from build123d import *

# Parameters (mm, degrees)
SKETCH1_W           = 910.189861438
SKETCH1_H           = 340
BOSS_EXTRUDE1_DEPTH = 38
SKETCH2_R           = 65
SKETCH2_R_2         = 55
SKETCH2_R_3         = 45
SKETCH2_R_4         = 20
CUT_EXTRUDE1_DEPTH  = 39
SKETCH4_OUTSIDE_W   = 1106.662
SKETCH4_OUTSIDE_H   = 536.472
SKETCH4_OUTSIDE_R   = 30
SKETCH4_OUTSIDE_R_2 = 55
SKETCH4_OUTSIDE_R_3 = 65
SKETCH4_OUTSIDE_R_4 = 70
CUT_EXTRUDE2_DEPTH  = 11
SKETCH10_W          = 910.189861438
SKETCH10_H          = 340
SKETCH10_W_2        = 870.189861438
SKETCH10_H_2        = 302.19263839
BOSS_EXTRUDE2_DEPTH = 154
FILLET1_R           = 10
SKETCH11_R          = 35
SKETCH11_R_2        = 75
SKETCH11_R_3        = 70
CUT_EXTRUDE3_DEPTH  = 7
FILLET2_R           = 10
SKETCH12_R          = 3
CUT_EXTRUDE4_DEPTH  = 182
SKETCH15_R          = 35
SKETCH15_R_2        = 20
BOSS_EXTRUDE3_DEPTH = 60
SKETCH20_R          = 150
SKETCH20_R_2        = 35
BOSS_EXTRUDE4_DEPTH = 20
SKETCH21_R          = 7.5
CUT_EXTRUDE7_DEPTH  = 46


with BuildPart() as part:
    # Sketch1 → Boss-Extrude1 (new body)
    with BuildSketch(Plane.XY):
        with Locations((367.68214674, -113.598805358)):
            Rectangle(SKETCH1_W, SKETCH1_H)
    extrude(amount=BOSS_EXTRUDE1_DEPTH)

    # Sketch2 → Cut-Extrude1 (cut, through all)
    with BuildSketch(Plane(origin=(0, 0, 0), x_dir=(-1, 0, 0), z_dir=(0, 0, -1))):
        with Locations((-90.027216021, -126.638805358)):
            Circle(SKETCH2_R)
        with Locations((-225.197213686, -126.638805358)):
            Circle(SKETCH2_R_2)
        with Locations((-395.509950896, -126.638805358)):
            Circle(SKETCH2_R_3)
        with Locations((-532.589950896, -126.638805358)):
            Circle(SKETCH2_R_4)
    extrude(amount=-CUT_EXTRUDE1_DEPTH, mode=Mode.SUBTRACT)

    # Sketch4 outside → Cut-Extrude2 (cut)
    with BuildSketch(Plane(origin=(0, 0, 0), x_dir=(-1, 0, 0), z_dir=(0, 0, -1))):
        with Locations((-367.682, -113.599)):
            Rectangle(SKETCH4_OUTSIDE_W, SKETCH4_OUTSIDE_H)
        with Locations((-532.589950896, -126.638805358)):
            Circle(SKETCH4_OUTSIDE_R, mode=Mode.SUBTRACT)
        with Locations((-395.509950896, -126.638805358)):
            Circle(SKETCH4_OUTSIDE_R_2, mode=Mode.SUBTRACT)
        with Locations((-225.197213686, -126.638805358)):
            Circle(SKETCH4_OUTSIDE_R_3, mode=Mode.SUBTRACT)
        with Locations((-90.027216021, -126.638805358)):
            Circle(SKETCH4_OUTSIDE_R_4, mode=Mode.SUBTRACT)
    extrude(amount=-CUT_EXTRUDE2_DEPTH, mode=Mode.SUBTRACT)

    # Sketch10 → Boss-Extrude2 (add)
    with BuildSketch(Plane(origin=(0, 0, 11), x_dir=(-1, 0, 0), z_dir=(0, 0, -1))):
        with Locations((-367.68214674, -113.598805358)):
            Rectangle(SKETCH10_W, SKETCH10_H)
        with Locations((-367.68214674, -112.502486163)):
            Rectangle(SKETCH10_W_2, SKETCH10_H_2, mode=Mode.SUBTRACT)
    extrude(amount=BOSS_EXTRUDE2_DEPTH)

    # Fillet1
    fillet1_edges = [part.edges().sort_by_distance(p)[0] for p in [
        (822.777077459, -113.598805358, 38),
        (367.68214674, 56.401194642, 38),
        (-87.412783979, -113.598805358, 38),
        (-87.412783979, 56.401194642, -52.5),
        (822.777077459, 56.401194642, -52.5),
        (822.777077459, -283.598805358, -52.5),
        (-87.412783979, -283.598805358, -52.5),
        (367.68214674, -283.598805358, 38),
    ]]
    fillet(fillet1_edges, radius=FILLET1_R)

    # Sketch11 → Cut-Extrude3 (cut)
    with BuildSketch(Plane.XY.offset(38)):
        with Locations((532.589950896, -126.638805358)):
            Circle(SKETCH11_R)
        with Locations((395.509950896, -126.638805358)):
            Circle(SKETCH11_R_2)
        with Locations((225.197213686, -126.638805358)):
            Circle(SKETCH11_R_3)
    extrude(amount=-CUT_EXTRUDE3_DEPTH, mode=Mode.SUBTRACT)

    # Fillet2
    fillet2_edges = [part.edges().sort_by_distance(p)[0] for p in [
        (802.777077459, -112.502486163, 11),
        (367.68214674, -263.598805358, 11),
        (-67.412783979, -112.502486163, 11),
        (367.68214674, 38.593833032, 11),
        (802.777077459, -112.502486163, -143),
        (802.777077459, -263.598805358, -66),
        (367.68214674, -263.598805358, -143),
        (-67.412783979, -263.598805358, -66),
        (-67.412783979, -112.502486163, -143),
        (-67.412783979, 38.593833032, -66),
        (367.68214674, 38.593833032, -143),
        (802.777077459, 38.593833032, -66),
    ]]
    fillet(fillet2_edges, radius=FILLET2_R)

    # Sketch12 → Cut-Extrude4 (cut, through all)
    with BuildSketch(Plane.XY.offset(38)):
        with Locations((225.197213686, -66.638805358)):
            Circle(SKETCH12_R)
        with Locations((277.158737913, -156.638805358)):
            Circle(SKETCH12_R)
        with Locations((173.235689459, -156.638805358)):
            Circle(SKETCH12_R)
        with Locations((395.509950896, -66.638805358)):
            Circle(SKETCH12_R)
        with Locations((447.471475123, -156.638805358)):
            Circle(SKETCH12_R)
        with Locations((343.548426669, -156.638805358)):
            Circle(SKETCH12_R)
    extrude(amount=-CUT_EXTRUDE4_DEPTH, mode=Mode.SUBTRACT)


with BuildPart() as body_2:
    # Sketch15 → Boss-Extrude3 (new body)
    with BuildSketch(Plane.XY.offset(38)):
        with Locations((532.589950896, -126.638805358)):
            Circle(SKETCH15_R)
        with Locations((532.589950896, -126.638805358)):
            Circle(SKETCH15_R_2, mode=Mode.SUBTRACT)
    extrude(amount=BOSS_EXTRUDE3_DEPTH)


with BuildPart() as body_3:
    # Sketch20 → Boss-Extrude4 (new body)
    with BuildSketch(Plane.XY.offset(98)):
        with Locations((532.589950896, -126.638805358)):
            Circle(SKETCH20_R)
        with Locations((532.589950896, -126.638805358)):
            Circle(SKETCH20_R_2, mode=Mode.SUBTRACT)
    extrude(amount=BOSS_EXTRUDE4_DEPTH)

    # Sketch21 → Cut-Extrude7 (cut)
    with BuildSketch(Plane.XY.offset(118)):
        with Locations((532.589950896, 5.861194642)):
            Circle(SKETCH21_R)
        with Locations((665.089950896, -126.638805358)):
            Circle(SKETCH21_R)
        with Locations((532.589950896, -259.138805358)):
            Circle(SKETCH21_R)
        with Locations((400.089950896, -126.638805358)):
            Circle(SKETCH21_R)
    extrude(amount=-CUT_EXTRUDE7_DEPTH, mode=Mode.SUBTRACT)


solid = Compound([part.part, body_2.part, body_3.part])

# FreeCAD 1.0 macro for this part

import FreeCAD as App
import Part
import Sketcher

V = App.Vector


def edges_at(feature, points):
    """Names of the edges that pass closest to the given points."""
    edges = feature.Shape.Edges
    near = lambda p: min(range(len(edges)), key=lambda i: edges[i].distToShape(Part.Vertex(*p))[0])
    return sorted({f"Edge{near(p) + 1}" for p in points})


def add_polygon(sketch, points):
    """Adds a closed chain of lines whose ends are joined by coincident constraints."""
    first, n = sketch.GeometryCount, len(points)
    for a, b in zip(points, points[1:] + points[:1]):
        sketch.addGeometry(Part.LineSegment(App.Vector(*a, 0), App.Vector(*b, 0)), False)
    for i in range(n):
        sketch.addConstraint(Sketcher.Constraint("Coincident", first + i, 2, first + (i + 1) % n, 1))

doc = App.newDocument("Part")
body = doc.addObject("PartDesign::Body", "Body")

# Sketch on XY plane
sketch1 = body.newObject("Sketcher::SketchObject", "Sketch")
sketch1.AttachmentSupport = (doc.getObject("XY_Plane"), [""])
sketch1.MapMode = "FlatFace"
add_polygon(sketch1, [(-87, 56), (-87, -284), (823, -284), (823, 56)])  # lines 0-3
sketch1.addConstraint([
    Sketcher.Constraint("Vertical", 0),
    Sketcher.Constraint("Horizontal", 1),
    Sketcher.Constraint("Vertical", 2),
    Sketcher.Constraint("Horizontal", 3),
    Sketcher.Constraint("DistanceY", 0, 2, 0, 1, 340.0),
    Sketcher.Constraint("DistanceX", 1, 1, 1, 2, 910.189861),
    Sketcher.Constraint("DistanceX", 0, 2, -1, 1, 87.412784),
    Sketcher.Constraint("DistanceY", 0, 2, -1, 1, 283.598805),
])
pad1 = body.newObject("PartDesign::Pad", "Pad")
pad1.Profile = sketch1
pad1.Length = 38

# Sketch on XY plane
sketch2 = body.newObject("Sketcher::SketchObject", "Sketch001")
sketch2.AttachmentSupport = (doc.getObject("XY_Plane"), [""])
sketch2.MapMode = "FlatFace"
sketch2.addGeometry([
    Part.Circle(V(90, -127, 0), V(0, 0, 1), 65),
    Part.Circle(V(225, -127, 0), V(0, 0, 1), 55),
    Part.Circle(V(396, -127, 0), V(0, 0, 1), 45),
    Part.Circle(V(533, -127, 0), V(0, 0, 1), 20),
], False)
sketch2.addConstraint([
    Sketcher.Constraint("Horizontal", 0, 3, 1, 3),
    Sketcher.Constraint("Horizontal", 1, 3, 2, 3),
    Sketcher.Constraint("Horizontal", 2, 3, 3, 3),
    Sketcher.Constraint("Diameter", 0, 130.0),
    Sketcher.Constraint("Diameter", 1, 110.0),
    Sketcher.Constraint("Diameter", 2, 90.0),
    Sketcher.Constraint("Diameter", 3, 40.0),
    Sketcher.Constraint("DistanceX", 2, 3, 3, 3, 137.08),
    Sketcher.Constraint("DistanceX", -1, 1, 2, 3, 395.509951),
    Sketcher.Constraint("DistanceX", -1, 1, 0, 3, 90.027216),
    Sketcher.Constraint("DistanceY", 0, 3, -1, 1, 126.638805),
    Sketcher.Constraint("DistanceX", -1, 1, 1, 3, 225.197214),
])
pocket1 = body.newObject("PartDesign::Pocket", "Pocket")
pocket1.Profile = sketch2
pocket1.Type = "ThroughAll"
pocket1.Reversed = True

# Sketch on XY plane
sketch3 = body.newObject("Sketcher::SketchObject", "Sketch002")
sketch3.AttachmentSupport = (doc.getObject("XY_Plane"), [""])
sketch3.MapMode = "FlatFace"
add_polygon(sketch3, [(921, 155), (921, -382), (-186, -382), (-186, 155)])  # lines 0-3
sketch3.addGeometry(Part.Circle(V(533, -127, 0), V(0, 0, 1), 30), False)  # 4
sketch3.addGeometry(Part.Circle(V(396, -127, 0), V(0, 0, 1), 55), False)  # 5
sketch3.addGeometry(Part.Circle(V(225, -127, 0), V(0, 0, 1), 65), False)  # 6
sketch3.addGeometry(Part.Circle(V(90, -127, 0), V(0, 0, 1), 70), False)  # 7
sketch3.addConstraint([
    Sketcher.Constraint("Vertical", 0),
    Sketcher.Constraint("Horizontal", 1),
    Sketcher.Constraint("Vertical", 2),
    Sketcher.Constraint("Horizontal", 3),
    Sketcher.Constraint("Horizontal", 4, 3, 5, 3),
    Sketcher.Constraint("Horizontal", 5, 3, 6, 3),
    Sketcher.Constraint("Horizontal", 6, 3, 7, 3),
    Sketcher.Constraint("Diameter", 4, 60.0),
    Sketcher.Constraint("Diameter", 5, 110.0),
    Sketcher.Constraint("Diameter", 6, 130.0),
    Sketcher.Constraint("Diameter", 7, 140.0),
    Sketcher.Constraint("DistanceX", 1, 2, 1, 1, 1106.662),
    Sketcher.Constraint("DistanceY", 0, 2, 0, 1, 536.472),
    Sketcher.Constraint("DistanceX", 5, 3, 4, 3, 137.08),
    Sketcher.Constraint("DistanceX", -1, 1, 0, 2, 921.013),
    Sketcher.Constraint("DistanceY", 0, 2, -1, 1, 381.835),
    Sketcher.Constraint("DistanceX", -1, 1, 4, 3, 532.589951),
    Sketcher.Constraint("DistanceY", 4, 3, -1, 1, 126.638805),
    Sketcher.Constraint("DistanceX", -1, 1, 6, 3, 225.197214),
    Sketcher.Constraint("DistanceX", -1, 1, 7, 3, 90.027216),
])
pocket2 = body.newObject("PartDesign::Pocket", "Pocket001")
pocket2.Profile = sketch3
pocket2.Length = 11
pocket2.Reversed = True

# Sketch on XY plane
sketch4 = body.newObject("Sketcher::SketchObject", "Sketch003")
sketch4.AttachmentSupport = (doc.getObject("XY_Plane"), [""])
sketch4.MapMode = "FlatFace"
sketch4.AttachmentOffset = App.Placement(V(0, 0, 11), App.Rotation())
add_polygon(sketch4, [(823, 56), (823, -284), (-87, -284), (-87, 56)])  # lines 0-3
add_polygon(sketch4, [(-67, -264), (803, -264), (803, 39), (-67, 39)])  # lines 4-7
sketch4.addConstraint([
    Sketcher.Constraint("Vertical", 0),
    Sketcher.Constraint("Horizontal", 1),
    Sketcher.Constraint("Vertical", 2),
    Sketcher.Constraint("Horizontal", 3),
    Sketcher.Constraint("Horizontal", 4),
    Sketcher.Constraint("Vertical", 5),
    Sketcher.Constraint("Horizontal", 6),
    Sketcher.Constraint("Vertical", 7),
    Sketcher.Constraint("DistanceY", 0, 2, 0, 1, 340.0),
    Sketcher.Constraint("DistanceX", 4, 2, 0, 2, 20.0),
    Sketcher.Constraint("DistanceY", 0, 2, 4, 2, 20.0),
    Sketcher.Constraint("DistanceX", 2, 2, 6, 2, 20.0),
    Sketcher.Constraint("DistanceX", 1, 2, 1, 1, 910.189861),
    Sketcher.Constraint("DistanceY", 5, 1, 5, 2, 302.192638),
    Sketcher.Constraint("DistanceX", -1, 1, 0, 2, 822.777077),
    Sketcher.Constraint("DistanceY", 0, 2, -1, 1, 283.598805),
])
pad2 = body.newObject("PartDesign::Pad", "Pad001")
pad2.Profile = sketch4
pad2.Length = 154
pad2.Reversed = True
doc.recompute()

fillet = body.newObject("PartDesign::Fillet", "Fillet")
fillet.Base = (pad2, edges_at(pad2, [
    (822.777, -113.599, 38),
    (367.682, 56.401, 38),
    (-87.413, -113.599, 38),
    (-87.413, 56.401, -52.5),
    (822.777, 56.401, -52.5),
    (822.777, -283.599, -52.5),
    (-87.413, -283.599, -52.5),
    (367.682, -283.599, 38),
]))
fillet.Radius = 10

# Sketch on XY plane
sketch5 = body.newObject("Sketcher::SketchObject", "Sketch004")
sketch5.AttachmentSupport = (doc.getObject("XY_Plane"), [""])
sketch5.MapMode = "FlatFace"
sketch5.AttachmentOffset = App.Placement(V(0, 0, 38), App.Rotation())
sketch5.addGeometry([
    Part.Circle(V(533, -127, 0), V(0, 0, 1), 35),
    Part.Circle(V(396, -127, 0), V(0, 0, 1), 75),
    Part.Circle(V(225, -127, 0), V(0, 0, 1), 70),
], False)
sketch5.addConstraint([
    Sketcher.Constraint("Horizontal", 0, 3, 1, 3),
    Sketcher.Constraint("Horizontal", 1, 3, 2, 3),
    Sketcher.Constraint("Diameter", 0, 70.0),
    Sketcher.Constraint("Diameter", 1, 150.0),
    Sketcher.Constraint("Diameter", 2, 140.0),
    Sketcher.Constraint("DistanceX", 1, 3, 0, 3, 137.08),
    Sketcher.Constraint("DistanceX", -1, 1, 0, 3, 532.589951),
    Sketcher.Constraint("DistanceY", 0, 3, -1, 1, 126.638805),
    Sketcher.Constraint("DistanceX", -1, 1, 2, 3, 225.197214),
])
pocket3 = body.newObject("PartDesign::Pocket", "Pocket002")
pocket3.Profile = sketch5
pocket3.Length = 7
doc.recompute()

fillet2 = body.newObject("PartDesign::Fillet", "Fillet001")
fillet2.Base = (pocket3, edges_at(pocket3, [
    (802.777, -112.502, 11),
    (367.682, -263.599, 11),
    (-67.413, -112.502, 11),
    (367.682, 38.594, 11),
    (802.777, -112.502, -143),
    (802.777, -263.599, -66),
    (367.682, -263.599, -143),
    (-67.413, -263.599, -66),
    (-67.413, -112.502, -143),
    (-67.413, 38.594, -66),
    (367.682, 38.594, -143),
    (802.777, 38.594, -66),
]))
fillet2.Radius = 10

# Sketch on XY plane
sketch6 = body.newObject("Sketcher::SketchObject", "Sketch005")
sketch6.AttachmentSupport = (doc.getObject("XY_Plane"), [""])
sketch6.MapMode = "FlatFace"
sketch6.AttachmentOffset = App.Placement(V(0, 0, 38), App.Rotation())
sketch6.addGeometry([
    Part.Circle(V(225.2, -66.6, 0), V(0, 0, 1), 3),  # 0
    Part.Circle(V(277.2, -156.6, 0), V(0, 0, 1), 3),  # 1
    Part.Circle(V(173.2, -156.6, 0), V(0, 0, 1), 3),  # 2
    Part.Circle(V(395.5, -66.6, 0), V(0, 0, 1), 3),  # 3
    Part.Circle(V(447.5, -156.6, 0), V(0, 0, 1), 3),  # 4
    Part.Circle(V(343.5, -156.6, 0), V(0, 0, 1), 3),  # 5
], False)
sketch6.addConstraint([
    Sketcher.Constraint("Equal", 0, 1),
    Sketcher.Constraint("Equal", 1, 2),
    Sketcher.Constraint("Equal", 2, 3),
    Sketcher.Constraint("Equal", 3, 4),
    Sketcher.Constraint("Equal", 4, 5),
    Sketcher.Constraint("Horizontal", 1, 3, 2, 3),
    Sketcher.Constraint("Horizontal", 0, 3, 3, 3),
    Sketcher.Constraint("Horizontal", 2, 3, 4, 3),
    Sketcher.Constraint("Horizontal", 4, 3, 5, 3),
    Sketcher.Constraint("Diameter", 0, 6.0),
    Sketcher.Constraint("DistanceY", 1, 3, 0, 3, 90.0),
    Sketcher.Constraint("DistanceX", -1, 1, 2, 3, 173.235689),
    Sketcher.Constraint("DistanceX", -1, 1, 3, 3, 395.509951),
    Sketcher.Constraint("DistanceX", 2, 3, 1, 3, 103.923048),
    Sketcher.Constraint("DistanceX", 0, 3, 4, 3, 222.274261),
    Sketcher.Constraint("DistanceX", 1, 3, 5, 3, 66.389689),
    Sketcher.Constraint("DistanceX", 5, 3, 4, 3, 103.923048),
    Sketcher.Constraint("DistanceY", 0, 3, -1, 1, 66.638805),
])
pocket4 = body.newObject("PartDesign::Pocket", "Pocket003")
pocket4.Profile = sketch6
pocket4.Type = "ThroughAll"
body2 = doc.addObject("PartDesign::Body", "Body001")

# Sketch on XY plane
sketch7 = body2.newObject("Sketcher::SketchObject", "Sketch006")
sketch7.AttachmentSupport = (doc.getObject("XY_Plane001"), [""])
sketch7.MapMode = "FlatFace"
sketch7.AttachmentOffset = App.Placement(V(0, 0, 38), App.Rotation())
sketch7.addGeometry([
    Part.Circle(V(533, -127, 0), V(0, 0, 1), 35),
    Part.Circle(V(533, -127, 0), V(0, 0, 1), 20),
], False)
sketch7.addConstraint([
    Sketcher.Constraint("Coincident", 1, 3, 0, 3),
    Sketcher.Constraint("Diameter", 0, 70.0),
    Sketcher.Constraint("Diameter", 1, 40.0),
    Sketcher.Constraint("DistanceX", -1, 1, 0, 3, 532.589951),
    Sketcher.Constraint("DistanceY", 0, 3, -1, 1, 126.638805),
])
pad3 = body2.newObject("PartDesign::Pad", "Pad002")
pad3.Profile = sketch7
pad3.Length = 60
body3 = doc.addObject("PartDesign::Body", "Body002")

# Sketch on XY plane
sketch8 = body3.newObject("Sketcher::SketchObject", "Sketch007")
sketch8.AttachmentSupport = (doc.getObject("XY_Plane002"), [""])
sketch8.MapMode = "FlatFace"
sketch8.AttachmentOffset = App.Placement(V(0, 0, 98), App.Rotation())
sketch8.addGeometry([
    Part.Circle(V(533, -127, 0), V(0, 0, 1), 150),
    Part.Circle(V(533, -127, 0), V(0, 0, 1), 35),
], False)
sketch8.addConstraint([
    Sketcher.Constraint("Coincident", 1, 3, 0, 3),
    Sketcher.Constraint("Diameter", 0, 300.0),
    Sketcher.Constraint("Diameter", 1, 70.0),
    Sketcher.Constraint("DistanceX", -1, 1, 0, 3, 532.589951),
    Sketcher.Constraint("DistanceY", 0, 3, -1, 1, 126.638805),
])
pad4 = body3.newObject("PartDesign::Pad", "Pad003")
pad4.Profile = sketch8
pad4.Length = 20

# Sketch on XY plane
sketch9 = body3.newObject("Sketcher::SketchObject", "Sketch008")
sketch9.AttachmentSupport = (doc.getObject("XY_Plane002"), [""])
sketch9.MapMode = "FlatFace"
sketch9.AttachmentOffset = App.Placement(V(0, 0, 118), App.Rotation())
sketch9.addGeometry([
    Part.Circle(V(533, 6, 0), V(0, 0, 1), 8),
    Part.Circle(V(665, -127, 0), V(0, 0, 1), 8),
    Part.Circle(V(533, -259, 0), V(0, 0, 1), 8),
    Part.Circle(V(400, -127, 0), V(0, 0, 1), 8),
], False)
sketch9.addConstraint([
    Sketcher.Constraint("Equal", 0, 1),
    Sketcher.Constraint("Equal", 1, 2),
    Sketcher.Constraint("Equal", 2, 3),
    Sketcher.Constraint("Horizontal", 1, 3, 3, 3),
    Sketcher.Constraint("Vertical", 0, 3, 2, 3),
    Sketcher.Constraint("Diameter", 0, 15.0),
    Sketcher.Constraint("DistanceY", 2, 3, 0, 3, 265.0),
    Sketcher.Constraint("DistanceX", 3, 3, 1, 3, 265.0),
    Sketcher.Constraint("DistanceX", 0, 3, 1, 3, 132.5),
    Sketcher.Constraint("DistanceY", 1, 3, 0, 3, 132.5),
    Sketcher.Constraint("DistanceX", -1, 1, 0, 3, 532.589951),
    Sketcher.Constraint("DistanceY", -1, 1, 0, 3, 5.861195),
])
pocket5 = body3.newObject("PartDesign::Pocket", "Pocket004")
pocket5.Profile = sketch9
pocket5.Length = 46

doc.recompute()
